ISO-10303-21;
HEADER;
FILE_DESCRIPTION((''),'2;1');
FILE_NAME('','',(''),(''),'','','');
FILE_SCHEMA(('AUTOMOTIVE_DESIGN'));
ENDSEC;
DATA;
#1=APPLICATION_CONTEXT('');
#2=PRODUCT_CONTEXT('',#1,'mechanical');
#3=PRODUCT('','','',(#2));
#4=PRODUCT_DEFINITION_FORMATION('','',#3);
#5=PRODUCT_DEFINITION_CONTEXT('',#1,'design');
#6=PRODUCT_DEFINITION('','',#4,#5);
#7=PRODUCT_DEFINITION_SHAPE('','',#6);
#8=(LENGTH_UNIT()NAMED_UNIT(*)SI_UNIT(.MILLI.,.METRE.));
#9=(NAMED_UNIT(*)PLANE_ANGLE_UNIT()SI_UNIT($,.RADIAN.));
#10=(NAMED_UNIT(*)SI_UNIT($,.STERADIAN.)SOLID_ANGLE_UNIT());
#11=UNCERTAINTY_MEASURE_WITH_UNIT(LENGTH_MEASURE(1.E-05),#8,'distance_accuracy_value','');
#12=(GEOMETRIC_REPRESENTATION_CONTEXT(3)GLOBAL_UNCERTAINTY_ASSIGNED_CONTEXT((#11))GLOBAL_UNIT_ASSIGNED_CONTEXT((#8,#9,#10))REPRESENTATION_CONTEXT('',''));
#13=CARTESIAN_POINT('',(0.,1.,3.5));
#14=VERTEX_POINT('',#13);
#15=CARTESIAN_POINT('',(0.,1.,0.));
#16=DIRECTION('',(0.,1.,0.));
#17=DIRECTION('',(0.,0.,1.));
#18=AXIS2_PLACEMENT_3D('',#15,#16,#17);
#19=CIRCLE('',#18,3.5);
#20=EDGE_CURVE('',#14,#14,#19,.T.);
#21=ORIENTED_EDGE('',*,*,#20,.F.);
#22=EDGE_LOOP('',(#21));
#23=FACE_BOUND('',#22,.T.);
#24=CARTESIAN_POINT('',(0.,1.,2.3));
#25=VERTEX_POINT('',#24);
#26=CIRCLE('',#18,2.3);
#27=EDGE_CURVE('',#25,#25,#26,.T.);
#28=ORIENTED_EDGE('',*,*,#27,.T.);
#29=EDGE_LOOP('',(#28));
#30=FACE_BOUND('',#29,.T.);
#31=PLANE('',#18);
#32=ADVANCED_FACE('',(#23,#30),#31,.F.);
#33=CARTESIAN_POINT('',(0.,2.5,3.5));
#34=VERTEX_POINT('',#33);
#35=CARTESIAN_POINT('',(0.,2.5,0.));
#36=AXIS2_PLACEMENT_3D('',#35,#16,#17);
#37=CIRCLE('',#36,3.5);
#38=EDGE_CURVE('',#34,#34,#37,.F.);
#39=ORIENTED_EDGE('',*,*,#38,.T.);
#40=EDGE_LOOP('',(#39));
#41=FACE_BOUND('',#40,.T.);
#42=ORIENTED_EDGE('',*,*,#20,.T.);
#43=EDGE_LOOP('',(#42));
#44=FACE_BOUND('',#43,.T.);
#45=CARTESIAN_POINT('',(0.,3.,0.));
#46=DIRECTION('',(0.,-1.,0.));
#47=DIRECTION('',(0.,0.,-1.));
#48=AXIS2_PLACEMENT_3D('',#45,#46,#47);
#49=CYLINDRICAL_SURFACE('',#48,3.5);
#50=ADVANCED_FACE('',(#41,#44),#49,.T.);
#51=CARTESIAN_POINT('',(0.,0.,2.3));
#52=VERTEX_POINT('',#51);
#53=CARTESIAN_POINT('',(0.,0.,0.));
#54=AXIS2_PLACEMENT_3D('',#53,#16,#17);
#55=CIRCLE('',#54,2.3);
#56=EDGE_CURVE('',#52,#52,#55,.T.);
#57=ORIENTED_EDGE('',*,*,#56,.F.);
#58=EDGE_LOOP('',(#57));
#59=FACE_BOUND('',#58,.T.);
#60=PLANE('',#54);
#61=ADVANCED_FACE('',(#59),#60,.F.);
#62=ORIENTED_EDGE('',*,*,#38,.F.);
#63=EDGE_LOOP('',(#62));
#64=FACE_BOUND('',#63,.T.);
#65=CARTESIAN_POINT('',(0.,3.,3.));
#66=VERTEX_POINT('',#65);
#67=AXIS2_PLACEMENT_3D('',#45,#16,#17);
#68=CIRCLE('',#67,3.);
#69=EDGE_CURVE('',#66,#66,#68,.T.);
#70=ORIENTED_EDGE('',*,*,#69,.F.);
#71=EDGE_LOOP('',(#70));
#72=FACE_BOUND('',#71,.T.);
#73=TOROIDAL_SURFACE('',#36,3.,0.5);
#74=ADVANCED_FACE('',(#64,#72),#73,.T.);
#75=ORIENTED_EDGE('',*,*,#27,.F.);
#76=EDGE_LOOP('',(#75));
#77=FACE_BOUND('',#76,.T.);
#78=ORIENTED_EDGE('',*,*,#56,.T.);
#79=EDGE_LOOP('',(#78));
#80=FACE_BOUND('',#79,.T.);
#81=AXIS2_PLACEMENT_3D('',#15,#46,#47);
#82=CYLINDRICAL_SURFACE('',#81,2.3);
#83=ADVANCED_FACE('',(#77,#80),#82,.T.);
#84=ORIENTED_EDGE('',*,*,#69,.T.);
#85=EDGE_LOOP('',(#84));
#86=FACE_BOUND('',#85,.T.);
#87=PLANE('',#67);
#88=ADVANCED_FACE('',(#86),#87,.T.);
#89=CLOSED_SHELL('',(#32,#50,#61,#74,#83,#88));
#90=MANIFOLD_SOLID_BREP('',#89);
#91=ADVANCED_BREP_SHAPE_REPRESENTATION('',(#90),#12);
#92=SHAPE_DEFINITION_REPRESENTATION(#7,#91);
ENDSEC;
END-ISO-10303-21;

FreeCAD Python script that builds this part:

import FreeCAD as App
import Part
import Sketcher
Q = App.Units.Quantity


def edges_at(feature, points):
    """Names of the edges that pass closest to the given points."""
    edges = feature.Shape.Edges
    near = lambda p: min(range(len(edges)), key=lambda i: edges[i].distToShape(Part.Vertex(*p))[0])
    return sorted({f"Edge{near(p) + 1}" for p in points})

doc = App.newDocument("Part")
body = doc.addObject("PartDesign::Body", "Body")

sketch1 = body.newObject("Sketcher::SketchObject", "Sketch")
sketch1.AttachmentSupport = (doc.getObject("XZ_Plane"), [""])
sketch1.MapMode = "FlatFace"
sketch1.addGeometry(Part.Circle(App.Vector(0, 0, 0), App.Vector(0, 0, 1), 2.3), False)
sketch1.addConstraint([
    Sketcher.Constraint("Coincident", 0, 3, -1, 1),
    Sketcher.Constraint("Diameter", 0, Q("4.6 mm")),
])
pad1 = body.newObject("PartDesign::Pad", "Pad")
pad1.Profile = sketch1
pad1.Length = 1
pad1.Reversed = True

sketch2 = body.newObject("Sketcher::SketchObject", "Sketch001")
sketch2.AttachmentSupport = (doc.getObject("XZ_Plane"), [""])
sketch2.MapMode = "FlatFace"
sketch2.AttachmentOffset = App.Placement(App.Vector(0, 0, -1), App.Rotation())
sketch2.addGeometry(Part.Circle(App.Vector(0, 0, 0), App.Vector(0, 0, 1), 3.5), False)
sketch2.addConstraint([
    Sketcher.Constraint("Coincident", 0, 3, -1, 1),
    Sketcher.Constraint("Diameter", 0, Q("7 mm")),
])
pad2 = body.newObject("PartDesign::Pad", "Pad001")
pad2.Profile = sketch2
pad2.Length = 2
pad2.Reversed = True
doc.recompute()

fillet = body.newObject("PartDesign::Fillet", "Fillet")
fillet.Base = (pad2, edges_at(pad2, [(0, 3, -3.5)]))
fillet.Radius = 0.5

doc.recompute()
